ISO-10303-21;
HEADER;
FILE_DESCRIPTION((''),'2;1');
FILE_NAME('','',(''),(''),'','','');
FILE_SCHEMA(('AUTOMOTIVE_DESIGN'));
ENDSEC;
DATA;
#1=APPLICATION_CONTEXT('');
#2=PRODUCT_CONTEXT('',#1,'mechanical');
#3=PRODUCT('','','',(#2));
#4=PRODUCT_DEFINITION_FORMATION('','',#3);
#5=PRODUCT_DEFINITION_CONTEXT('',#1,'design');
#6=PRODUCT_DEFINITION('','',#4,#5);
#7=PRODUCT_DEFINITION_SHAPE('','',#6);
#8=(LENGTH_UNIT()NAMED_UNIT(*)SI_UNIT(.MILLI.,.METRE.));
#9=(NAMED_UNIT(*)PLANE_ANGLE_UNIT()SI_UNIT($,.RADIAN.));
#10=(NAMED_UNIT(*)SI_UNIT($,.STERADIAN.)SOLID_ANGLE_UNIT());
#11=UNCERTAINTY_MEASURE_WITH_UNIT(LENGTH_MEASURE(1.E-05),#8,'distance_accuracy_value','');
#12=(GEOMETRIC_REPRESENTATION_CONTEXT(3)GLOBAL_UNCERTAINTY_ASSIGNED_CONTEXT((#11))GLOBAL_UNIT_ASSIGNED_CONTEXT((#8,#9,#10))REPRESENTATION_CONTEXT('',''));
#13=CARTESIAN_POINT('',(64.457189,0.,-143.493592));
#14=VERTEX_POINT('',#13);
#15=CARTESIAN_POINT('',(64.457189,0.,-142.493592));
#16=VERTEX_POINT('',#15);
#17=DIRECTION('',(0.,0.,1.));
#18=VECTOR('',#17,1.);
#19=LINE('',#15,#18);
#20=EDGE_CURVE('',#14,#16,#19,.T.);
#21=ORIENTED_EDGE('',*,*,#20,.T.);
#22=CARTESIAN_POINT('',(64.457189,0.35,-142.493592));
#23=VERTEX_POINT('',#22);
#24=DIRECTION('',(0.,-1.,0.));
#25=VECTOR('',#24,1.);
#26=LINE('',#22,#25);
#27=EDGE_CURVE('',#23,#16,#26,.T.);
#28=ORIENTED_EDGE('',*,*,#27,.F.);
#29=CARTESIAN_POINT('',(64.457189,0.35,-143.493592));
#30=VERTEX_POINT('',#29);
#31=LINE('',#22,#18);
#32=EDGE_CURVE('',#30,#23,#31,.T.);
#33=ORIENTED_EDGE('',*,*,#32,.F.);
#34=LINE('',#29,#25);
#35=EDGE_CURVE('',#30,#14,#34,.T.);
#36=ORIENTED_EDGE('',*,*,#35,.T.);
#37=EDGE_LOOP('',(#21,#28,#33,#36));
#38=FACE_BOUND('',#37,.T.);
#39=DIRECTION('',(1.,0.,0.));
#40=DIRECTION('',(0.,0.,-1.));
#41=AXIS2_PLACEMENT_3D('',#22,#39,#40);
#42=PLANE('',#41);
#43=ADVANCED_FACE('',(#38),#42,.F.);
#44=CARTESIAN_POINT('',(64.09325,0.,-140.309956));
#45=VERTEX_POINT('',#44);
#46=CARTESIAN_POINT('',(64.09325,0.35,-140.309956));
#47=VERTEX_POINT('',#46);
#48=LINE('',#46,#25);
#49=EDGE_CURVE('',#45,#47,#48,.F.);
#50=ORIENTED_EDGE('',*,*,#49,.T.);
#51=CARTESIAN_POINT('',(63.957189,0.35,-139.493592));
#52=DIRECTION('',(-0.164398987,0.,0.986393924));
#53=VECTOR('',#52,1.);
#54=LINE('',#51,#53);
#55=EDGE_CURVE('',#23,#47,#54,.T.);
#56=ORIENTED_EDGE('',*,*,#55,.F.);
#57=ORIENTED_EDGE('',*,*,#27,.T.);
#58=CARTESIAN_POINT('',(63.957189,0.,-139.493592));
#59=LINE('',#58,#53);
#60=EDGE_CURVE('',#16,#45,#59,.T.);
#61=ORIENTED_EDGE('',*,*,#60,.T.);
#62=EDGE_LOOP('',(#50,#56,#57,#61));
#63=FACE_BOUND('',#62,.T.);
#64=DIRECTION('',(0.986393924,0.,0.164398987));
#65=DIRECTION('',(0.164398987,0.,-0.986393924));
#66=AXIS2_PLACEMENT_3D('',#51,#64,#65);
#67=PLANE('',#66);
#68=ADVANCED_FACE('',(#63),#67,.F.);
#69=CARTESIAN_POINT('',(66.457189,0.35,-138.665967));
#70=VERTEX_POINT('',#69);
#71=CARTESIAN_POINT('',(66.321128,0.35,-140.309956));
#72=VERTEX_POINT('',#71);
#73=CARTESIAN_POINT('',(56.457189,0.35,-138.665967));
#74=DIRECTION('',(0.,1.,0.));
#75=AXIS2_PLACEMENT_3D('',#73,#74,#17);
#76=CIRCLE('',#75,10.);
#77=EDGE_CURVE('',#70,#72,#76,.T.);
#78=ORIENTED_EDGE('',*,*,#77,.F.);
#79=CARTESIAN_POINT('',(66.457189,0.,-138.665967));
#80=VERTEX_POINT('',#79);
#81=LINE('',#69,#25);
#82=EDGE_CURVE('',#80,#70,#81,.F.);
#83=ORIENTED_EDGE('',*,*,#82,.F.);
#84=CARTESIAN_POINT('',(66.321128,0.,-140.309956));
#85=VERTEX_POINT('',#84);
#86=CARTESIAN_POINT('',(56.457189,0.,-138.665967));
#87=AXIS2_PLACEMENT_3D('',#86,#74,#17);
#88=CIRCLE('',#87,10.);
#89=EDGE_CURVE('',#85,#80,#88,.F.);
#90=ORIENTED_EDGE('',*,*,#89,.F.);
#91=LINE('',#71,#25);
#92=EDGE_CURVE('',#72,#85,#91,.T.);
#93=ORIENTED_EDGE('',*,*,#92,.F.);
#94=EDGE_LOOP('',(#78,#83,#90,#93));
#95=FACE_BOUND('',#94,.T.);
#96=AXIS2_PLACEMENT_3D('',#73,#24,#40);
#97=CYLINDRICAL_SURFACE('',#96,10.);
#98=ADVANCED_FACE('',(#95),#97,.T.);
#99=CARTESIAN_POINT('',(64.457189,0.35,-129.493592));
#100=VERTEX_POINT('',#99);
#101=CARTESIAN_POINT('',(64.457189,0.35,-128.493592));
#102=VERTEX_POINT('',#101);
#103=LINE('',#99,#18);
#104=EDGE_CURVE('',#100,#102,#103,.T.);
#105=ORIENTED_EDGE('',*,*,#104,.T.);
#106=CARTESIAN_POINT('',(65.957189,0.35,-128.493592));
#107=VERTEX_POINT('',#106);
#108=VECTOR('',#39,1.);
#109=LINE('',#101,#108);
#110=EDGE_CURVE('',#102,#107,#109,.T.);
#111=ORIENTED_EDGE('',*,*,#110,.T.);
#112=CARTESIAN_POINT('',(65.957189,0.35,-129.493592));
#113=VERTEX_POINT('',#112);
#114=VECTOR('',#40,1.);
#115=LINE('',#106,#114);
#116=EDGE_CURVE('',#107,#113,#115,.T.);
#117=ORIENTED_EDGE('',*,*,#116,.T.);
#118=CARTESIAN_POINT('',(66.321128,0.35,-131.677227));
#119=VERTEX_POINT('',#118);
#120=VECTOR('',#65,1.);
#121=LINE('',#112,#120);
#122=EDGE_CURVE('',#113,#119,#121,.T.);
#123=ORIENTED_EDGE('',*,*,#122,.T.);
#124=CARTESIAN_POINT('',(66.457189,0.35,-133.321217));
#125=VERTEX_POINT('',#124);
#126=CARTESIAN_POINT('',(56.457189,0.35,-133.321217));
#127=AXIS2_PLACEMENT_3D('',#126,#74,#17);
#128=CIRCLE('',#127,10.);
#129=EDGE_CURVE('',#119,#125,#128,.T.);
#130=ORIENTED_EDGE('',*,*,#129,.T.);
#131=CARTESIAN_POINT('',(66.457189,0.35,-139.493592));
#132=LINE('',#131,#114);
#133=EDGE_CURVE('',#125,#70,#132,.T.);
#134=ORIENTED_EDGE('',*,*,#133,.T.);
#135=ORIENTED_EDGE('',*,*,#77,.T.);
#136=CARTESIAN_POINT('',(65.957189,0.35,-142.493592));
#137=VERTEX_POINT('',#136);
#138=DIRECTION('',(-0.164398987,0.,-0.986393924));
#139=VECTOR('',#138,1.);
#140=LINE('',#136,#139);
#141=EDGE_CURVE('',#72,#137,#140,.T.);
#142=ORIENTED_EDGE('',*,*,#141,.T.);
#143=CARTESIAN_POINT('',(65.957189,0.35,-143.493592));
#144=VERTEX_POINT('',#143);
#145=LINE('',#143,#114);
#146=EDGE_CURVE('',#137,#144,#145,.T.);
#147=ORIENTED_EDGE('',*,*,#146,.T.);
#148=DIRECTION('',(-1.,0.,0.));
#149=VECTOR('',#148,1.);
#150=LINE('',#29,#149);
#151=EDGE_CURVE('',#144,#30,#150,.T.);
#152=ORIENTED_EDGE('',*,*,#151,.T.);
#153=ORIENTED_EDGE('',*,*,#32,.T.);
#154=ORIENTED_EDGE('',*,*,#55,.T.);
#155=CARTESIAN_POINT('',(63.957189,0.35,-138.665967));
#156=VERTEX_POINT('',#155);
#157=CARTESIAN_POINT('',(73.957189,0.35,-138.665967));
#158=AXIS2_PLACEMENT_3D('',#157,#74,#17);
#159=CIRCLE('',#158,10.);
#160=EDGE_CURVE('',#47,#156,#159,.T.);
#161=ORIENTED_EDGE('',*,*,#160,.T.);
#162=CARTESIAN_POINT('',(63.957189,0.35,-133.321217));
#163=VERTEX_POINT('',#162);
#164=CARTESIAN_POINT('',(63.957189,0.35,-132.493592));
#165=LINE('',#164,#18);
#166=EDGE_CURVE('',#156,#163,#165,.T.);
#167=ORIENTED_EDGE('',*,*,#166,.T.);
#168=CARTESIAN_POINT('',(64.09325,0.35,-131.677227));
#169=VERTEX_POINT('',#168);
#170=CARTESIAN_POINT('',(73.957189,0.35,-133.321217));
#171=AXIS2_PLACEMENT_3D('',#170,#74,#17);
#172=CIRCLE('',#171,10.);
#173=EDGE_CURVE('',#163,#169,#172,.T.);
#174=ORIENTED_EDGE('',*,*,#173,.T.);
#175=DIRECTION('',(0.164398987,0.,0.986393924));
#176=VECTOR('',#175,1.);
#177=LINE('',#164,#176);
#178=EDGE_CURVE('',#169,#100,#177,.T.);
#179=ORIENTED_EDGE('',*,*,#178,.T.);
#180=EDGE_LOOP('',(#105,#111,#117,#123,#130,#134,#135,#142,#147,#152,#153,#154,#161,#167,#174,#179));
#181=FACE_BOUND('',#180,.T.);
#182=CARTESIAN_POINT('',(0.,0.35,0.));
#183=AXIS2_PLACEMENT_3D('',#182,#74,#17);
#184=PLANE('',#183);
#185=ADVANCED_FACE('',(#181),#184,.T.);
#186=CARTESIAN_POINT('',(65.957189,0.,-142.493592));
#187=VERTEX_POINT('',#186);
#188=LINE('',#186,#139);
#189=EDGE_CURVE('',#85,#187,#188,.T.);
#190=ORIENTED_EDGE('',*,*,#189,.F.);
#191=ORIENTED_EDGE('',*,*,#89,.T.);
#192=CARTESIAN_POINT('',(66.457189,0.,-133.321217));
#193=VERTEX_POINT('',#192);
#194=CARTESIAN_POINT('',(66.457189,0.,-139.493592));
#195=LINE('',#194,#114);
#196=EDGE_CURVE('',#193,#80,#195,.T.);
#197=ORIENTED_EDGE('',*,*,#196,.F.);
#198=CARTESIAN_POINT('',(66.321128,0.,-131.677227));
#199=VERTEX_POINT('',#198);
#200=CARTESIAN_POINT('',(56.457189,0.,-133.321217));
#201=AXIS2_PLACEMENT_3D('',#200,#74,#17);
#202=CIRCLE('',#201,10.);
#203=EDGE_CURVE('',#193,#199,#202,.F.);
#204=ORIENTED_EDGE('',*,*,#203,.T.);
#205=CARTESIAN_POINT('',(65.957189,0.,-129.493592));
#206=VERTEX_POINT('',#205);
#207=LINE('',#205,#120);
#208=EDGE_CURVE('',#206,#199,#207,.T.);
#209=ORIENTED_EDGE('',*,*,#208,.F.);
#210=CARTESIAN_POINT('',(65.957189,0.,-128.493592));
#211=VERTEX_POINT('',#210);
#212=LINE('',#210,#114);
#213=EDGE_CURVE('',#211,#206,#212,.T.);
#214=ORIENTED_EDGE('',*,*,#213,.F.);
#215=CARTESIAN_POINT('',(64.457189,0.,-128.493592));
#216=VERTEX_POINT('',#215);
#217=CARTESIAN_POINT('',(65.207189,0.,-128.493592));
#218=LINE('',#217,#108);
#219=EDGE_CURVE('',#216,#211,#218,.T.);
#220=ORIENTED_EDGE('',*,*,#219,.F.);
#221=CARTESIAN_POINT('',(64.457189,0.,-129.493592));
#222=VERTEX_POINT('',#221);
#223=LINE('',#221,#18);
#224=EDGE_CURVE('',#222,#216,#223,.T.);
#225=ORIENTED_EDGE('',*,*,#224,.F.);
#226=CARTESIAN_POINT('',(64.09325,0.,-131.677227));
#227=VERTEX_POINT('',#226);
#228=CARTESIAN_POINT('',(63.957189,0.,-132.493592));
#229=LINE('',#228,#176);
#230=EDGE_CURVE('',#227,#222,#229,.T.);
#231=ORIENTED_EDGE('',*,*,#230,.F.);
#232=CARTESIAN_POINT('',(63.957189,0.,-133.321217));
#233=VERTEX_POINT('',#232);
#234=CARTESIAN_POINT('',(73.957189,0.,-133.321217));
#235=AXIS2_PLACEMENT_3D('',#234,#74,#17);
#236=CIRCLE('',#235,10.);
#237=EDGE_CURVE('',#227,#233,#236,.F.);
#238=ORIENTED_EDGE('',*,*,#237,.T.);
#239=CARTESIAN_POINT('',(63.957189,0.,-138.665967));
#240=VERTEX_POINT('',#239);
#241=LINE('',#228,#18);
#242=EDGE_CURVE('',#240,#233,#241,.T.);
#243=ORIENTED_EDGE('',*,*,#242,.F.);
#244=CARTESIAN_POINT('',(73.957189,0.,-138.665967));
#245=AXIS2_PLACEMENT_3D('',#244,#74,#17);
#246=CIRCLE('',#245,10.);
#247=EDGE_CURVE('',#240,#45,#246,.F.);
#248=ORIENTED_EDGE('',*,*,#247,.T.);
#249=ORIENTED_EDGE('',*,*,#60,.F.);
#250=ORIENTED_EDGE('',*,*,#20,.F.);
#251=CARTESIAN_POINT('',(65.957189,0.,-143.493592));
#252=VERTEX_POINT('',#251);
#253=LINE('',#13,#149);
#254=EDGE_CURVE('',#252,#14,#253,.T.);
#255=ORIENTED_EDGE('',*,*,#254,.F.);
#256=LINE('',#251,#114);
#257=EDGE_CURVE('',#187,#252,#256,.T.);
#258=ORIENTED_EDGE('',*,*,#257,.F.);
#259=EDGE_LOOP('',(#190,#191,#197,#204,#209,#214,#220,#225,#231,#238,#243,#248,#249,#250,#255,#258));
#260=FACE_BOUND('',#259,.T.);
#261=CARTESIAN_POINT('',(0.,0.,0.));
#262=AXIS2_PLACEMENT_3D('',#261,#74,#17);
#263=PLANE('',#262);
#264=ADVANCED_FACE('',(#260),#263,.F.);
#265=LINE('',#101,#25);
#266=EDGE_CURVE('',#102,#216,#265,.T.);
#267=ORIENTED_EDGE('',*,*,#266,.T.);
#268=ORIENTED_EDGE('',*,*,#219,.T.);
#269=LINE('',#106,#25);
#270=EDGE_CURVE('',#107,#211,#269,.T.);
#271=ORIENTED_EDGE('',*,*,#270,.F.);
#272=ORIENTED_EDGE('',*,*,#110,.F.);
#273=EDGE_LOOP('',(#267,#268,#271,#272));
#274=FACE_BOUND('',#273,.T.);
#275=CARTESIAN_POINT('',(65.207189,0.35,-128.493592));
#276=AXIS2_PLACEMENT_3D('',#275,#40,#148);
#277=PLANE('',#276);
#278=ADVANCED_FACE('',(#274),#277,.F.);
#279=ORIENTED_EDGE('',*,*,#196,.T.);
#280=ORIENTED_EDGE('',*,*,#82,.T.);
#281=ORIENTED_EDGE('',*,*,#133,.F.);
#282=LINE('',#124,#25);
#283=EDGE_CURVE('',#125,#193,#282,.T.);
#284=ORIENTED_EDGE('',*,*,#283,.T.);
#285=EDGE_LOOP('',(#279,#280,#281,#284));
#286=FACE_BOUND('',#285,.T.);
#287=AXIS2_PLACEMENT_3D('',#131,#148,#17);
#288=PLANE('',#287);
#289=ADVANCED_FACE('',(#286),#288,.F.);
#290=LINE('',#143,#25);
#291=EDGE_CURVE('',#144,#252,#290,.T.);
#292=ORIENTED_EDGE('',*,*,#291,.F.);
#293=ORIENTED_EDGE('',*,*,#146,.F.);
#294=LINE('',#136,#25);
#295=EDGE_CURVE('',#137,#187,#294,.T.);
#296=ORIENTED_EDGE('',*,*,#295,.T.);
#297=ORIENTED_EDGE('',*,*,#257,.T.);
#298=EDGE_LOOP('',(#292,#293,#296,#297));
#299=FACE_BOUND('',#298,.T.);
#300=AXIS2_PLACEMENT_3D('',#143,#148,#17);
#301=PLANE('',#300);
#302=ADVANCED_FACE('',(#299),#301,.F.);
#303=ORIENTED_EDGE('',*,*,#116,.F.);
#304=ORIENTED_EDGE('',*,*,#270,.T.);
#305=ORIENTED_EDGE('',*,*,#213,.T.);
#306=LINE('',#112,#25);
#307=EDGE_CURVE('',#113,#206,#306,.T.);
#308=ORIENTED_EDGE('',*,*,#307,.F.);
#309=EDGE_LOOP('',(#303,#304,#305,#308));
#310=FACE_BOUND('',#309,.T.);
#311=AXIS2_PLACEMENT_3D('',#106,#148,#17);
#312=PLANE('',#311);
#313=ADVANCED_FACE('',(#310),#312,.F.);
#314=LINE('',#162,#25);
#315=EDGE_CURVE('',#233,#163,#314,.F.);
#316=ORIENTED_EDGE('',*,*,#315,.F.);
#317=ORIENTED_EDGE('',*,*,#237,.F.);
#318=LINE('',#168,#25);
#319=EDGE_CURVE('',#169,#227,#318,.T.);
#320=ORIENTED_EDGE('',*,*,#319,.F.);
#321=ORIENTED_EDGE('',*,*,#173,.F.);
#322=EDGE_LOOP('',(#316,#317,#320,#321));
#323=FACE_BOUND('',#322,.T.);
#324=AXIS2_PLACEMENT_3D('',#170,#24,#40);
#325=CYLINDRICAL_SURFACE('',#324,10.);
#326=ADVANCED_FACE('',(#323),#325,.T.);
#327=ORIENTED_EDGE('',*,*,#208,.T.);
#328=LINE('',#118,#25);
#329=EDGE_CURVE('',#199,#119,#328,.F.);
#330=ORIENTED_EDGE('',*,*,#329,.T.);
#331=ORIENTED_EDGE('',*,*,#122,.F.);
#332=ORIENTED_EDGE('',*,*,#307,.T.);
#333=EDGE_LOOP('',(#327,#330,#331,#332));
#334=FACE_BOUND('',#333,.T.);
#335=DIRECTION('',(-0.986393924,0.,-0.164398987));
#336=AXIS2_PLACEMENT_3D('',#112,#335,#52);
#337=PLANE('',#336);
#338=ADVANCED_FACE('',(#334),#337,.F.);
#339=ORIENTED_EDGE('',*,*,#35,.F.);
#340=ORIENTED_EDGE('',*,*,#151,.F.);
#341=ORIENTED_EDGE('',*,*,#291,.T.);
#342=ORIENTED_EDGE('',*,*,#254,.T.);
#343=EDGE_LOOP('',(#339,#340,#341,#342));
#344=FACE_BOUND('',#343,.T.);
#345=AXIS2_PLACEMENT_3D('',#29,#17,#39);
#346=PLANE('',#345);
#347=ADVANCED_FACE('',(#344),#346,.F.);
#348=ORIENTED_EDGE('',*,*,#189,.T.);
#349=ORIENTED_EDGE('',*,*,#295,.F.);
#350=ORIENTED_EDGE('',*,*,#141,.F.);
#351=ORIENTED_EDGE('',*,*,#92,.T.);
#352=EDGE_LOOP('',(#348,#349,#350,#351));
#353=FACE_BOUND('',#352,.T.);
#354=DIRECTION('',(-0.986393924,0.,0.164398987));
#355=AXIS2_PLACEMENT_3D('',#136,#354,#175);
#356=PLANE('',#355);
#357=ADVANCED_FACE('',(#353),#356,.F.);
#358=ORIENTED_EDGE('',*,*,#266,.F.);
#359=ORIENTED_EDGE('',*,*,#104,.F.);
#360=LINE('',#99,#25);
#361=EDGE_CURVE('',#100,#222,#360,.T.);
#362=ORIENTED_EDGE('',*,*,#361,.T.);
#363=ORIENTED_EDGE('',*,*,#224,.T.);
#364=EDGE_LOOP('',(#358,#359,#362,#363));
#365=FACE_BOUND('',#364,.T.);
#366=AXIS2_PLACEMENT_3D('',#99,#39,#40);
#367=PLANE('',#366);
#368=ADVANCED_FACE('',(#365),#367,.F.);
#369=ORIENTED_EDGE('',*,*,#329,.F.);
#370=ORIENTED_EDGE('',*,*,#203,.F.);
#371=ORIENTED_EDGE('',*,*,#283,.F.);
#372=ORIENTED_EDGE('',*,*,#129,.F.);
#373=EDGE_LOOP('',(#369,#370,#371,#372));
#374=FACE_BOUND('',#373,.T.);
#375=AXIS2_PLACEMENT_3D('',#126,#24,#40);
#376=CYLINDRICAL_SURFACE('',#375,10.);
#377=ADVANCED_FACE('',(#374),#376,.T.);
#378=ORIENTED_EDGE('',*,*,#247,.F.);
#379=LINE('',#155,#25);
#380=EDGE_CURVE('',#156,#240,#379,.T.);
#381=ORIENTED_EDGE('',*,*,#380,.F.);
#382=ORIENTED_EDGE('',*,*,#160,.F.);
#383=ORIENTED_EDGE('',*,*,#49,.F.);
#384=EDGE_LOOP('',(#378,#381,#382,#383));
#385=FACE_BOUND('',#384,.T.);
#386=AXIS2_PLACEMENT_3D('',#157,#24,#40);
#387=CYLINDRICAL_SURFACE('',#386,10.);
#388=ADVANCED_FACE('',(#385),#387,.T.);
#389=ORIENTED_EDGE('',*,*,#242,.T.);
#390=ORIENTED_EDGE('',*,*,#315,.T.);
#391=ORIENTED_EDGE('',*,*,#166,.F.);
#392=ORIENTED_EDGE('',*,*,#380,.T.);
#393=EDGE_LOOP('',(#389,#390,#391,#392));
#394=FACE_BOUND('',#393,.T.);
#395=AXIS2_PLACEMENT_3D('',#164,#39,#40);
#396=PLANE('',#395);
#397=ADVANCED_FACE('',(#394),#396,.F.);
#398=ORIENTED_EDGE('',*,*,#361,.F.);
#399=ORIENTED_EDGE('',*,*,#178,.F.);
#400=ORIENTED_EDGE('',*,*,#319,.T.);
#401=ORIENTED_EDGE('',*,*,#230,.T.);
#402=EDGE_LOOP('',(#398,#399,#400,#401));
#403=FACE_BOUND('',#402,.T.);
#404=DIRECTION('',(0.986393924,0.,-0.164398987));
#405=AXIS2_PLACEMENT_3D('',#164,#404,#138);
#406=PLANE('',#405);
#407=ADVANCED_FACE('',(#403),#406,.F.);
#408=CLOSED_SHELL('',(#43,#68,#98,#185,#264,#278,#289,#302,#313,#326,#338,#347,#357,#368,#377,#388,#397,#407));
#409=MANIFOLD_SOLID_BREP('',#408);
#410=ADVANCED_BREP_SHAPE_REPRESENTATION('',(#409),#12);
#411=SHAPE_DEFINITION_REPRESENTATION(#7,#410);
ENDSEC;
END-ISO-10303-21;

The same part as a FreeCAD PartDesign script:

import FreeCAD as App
import Part
import Sketcher
from FreeCAD import Vector


def edges_at(feature, points):
    """Names of the edges that pass closest to the given points."""
    edges = feature.Shape.Edges
    near = lambda p: min(range(len(edges)), key=lambda i: edges[i].distToShape(Part.Vertex(*p))[0])
    return sorted({f"Edge{near(p) + 1}" for p in points})


def add_polygon(sketch, points):
    """Adds a closed chain of lines whose ends are joined by coincident constraints."""
    first, n = sketch.GeometryCount, len(points)
    for a, b in zip(points, points[1:] + points[:1]):
        sketch.addGeometry(Part.LineSegment(App.Vector(*a, 0), App.Vector(*b, 0)), False)
    for i in range(n):
        sketch.addConstraint(Sketcher.Constraint("Coincident", first + i, 2, first + (i + 1) % n, 1))

doc = App.newDocument("Part")
body = doc.addObject("PartDesign::Body", "Body")

# Sketch on XZ plane
sketch1 = body.newObject("Sketcher::SketchObject", "Sketch")
sketch1.AttachmentSupport = (doc.getObject("XZ_Plane"), [""])
sketch1.MapMode = "FlatFace"
add_polygon(sketch1, [(66, -129.5), (66.5, -132.5), (66.5, -139.5), (66, -142.5), (66, -143.5), (64.5, -143.5), (64.5, -142.5), (64, -139.5), (64, -132.5), (64.5, -129.5), (64.5, -128.5), (66, -128.5)])  # lines 0-11
sketch1.addConstraint([
    Sketcher.Constraint("Vertical", 1),
    Sketcher.Constraint("Vertical", 3),
    Sketcher.Constraint("Horizontal", 4),
    Sketcher.Constraint("Vertical", 5),
    Sketcher.Constraint("Vertical", 7),
    Sketcher.Constraint("Vertical", 9),
    Sketcher.Constraint("Horizontal", 10),
    Sketcher.Constraint("Vertical", 11),
    Sketcher.Constraint("Parallel", 0, 6),
    Sketcher.Constraint("Parallel", 2, 8),
    Sketcher.Constraint("Horizontal", 2, 2, 5, 2),
    Sketcher.Constraint("Horizontal", 1, 2, 6, 2),
    Sketcher.Constraint("Horizontal", 0, 2, 7, 2),
    Sketcher.Constraint("Horizontal", 8, 2, 11, 2),
    Sketcher.Constraint("Vertical", 5, 2, 8, 2),
    Sketcher.Constraint("Vertical", 3, 2, 10, 2),
    Sketcher.Constraint("Equal", 5, 9),
    Sketcher.Constraint("DistanceY", 1, 2, 1, 1, 7.0),
    Sketcher.Constraint("DistanceY", 3, 2, 3, 1, 1.0),
    Sketcher.Constraint("DistanceX", 4, 2, 4, 1, 1.5),
    Sketcher.Constraint("DistanceY", 2, 2, 1, 2, 3.0),
    Sketcher.Constraint("DistanceX", 4, 2, 1, 2, 2.0),
    Sketcher.Constraint("DistanceX", -1, 1, 0, 2, 66.457189),
    Sketcher.Constraint("DistanceY", 0, 2, -1, 1, 132.493592),
])
pad1 = body.newObject("PartDesign::Pad", "Pad")
pad1.Profile = sketch1
pad1.Length = 0.35
pad1.Reversed = True
doc.recompute()

fillet = body.newObject("PartDesign::Fillet", "Fillet")
fillet.Base = (pad1, edges_at(pad1, [
    (66.457, 0.175, -132.494),
    (63.957, 0.175, -132.494),
    (63.957, 0.175, -139.494),
    (66.457, 0.175, -139.494),
]))
fillet.Radius = 10

doc.recompute()
